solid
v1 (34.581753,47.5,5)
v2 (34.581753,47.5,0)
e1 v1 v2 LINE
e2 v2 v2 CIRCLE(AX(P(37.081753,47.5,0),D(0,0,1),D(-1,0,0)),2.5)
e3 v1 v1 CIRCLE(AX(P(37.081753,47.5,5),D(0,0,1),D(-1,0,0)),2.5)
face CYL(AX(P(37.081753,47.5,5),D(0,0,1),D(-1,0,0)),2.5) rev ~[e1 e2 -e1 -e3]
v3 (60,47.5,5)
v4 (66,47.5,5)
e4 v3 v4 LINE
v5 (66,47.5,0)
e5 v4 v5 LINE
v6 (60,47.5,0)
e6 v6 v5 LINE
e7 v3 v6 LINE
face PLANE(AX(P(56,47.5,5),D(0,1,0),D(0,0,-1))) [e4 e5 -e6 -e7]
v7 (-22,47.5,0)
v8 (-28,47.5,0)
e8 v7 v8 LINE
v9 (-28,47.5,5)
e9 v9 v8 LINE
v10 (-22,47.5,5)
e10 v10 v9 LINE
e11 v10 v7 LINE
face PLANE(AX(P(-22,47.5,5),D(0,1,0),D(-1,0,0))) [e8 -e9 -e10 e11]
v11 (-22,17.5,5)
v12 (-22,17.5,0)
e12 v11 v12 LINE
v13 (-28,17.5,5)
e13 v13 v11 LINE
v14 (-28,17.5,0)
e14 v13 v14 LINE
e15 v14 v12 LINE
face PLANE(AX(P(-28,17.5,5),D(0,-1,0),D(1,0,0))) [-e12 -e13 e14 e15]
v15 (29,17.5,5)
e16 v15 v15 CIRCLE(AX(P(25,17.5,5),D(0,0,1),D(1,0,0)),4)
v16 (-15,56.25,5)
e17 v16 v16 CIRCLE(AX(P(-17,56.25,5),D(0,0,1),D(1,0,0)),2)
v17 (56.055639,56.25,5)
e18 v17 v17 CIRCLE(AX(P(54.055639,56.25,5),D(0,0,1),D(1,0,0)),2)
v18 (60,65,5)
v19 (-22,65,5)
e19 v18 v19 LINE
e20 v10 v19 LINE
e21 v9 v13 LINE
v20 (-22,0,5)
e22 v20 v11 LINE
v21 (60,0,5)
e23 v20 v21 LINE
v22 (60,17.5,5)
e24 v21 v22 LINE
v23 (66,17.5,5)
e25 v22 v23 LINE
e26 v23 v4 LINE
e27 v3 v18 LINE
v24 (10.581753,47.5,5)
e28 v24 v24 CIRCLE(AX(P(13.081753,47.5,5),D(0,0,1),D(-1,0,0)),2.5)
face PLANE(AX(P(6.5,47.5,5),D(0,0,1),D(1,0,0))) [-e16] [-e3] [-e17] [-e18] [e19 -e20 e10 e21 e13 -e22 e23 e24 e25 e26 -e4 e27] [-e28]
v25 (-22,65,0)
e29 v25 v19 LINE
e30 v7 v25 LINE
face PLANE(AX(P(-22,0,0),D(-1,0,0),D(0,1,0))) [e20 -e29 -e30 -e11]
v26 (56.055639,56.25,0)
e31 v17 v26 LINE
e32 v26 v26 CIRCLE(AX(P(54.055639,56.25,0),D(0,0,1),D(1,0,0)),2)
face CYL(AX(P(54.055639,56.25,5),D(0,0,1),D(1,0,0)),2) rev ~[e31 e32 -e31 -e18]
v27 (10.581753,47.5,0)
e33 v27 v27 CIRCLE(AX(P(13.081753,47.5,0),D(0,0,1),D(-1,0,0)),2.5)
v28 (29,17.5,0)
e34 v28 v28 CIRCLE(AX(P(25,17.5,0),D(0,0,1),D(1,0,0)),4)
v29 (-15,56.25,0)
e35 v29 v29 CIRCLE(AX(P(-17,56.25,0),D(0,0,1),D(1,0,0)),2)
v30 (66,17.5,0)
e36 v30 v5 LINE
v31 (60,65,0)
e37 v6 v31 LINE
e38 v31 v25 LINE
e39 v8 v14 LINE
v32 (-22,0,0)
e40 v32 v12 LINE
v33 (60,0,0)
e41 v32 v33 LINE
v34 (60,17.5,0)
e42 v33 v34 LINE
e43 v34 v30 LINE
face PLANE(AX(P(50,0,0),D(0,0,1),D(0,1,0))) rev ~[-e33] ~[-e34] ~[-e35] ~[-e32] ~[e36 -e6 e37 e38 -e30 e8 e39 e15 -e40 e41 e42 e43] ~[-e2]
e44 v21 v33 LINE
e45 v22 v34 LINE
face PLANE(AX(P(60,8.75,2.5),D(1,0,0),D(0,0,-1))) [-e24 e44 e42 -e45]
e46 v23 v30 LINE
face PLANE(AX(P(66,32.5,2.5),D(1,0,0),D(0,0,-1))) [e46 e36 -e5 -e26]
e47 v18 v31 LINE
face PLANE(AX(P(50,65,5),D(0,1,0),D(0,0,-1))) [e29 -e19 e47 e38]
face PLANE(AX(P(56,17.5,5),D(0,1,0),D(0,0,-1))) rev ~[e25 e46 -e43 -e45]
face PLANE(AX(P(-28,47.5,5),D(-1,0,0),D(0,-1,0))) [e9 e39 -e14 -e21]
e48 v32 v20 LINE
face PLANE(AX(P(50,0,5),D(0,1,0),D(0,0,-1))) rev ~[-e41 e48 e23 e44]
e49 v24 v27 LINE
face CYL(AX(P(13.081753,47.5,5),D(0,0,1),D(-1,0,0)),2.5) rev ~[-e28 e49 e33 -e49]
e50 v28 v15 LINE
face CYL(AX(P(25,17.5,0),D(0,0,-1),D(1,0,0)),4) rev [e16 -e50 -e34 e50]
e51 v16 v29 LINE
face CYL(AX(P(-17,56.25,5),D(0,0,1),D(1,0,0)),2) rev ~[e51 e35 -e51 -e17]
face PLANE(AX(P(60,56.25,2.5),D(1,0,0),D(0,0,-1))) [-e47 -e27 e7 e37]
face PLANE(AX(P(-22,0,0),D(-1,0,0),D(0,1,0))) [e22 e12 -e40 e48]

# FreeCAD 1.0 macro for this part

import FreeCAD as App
import Part
import Sketcher

V = App.Vector
Q = App.Units.Quantity


def add_polygon(sketch, points):
    """Adds a closed chain of lines whose ends are joined by coincident constraints."""
    first, n = sketch.GeometryCount, len(points)
    for a, b in zip(points, points[1:] + points[:1]):
        sketch.addGeometry(Part.LineSegment(App.Vector(*a, 0), App.Vector(*b, 0)), False)
    for i in range(n):
        sketch.addConstraint(Sketcher.Constraint("Coincident", first + i, 2, first + (i + 1) % n, 1))

doc = App.newDocument("Part")
body = doc.addObject("PartDesign::Body", "Body")

# Sketch on XY plane
sketch1 = body.newObject("Sketcher::SketchObject", "Sketch")
sketch1.AttachmentSupport = (doc.getObject("XY_Plane"), [""])
sketch1.MapMode = "FlatFace"
add_polygon(sketch1, [(0, 65), (0, 0), (50, 0), (50, 65)])  # lines 0-3
sketch1.addGeometry(Part.Circle(V(25, 17.5, 0), V(0, 0, 1), 4), False)  # 4
sketch1.addGeometry(Part.Circle(V(13, 47.5, 0), V(0, 0, 1), 2), False)  # 5
sketch1.addGeometry(Part.Circle(V(37, 47.5, 0), V(0, 0, 1), 2), False)  # 6
sketch1.addGeometry(Part.Circle(V(25, 59.5, 0), V(0, 0, 1), 2), False)  # 7
sketch1.addConstraint([
    Sketcher.Constraint("Vertical", 0),
    Sketcher.Constraint("Horizontal", 1),
    Sketcher.Constraint("Vertical", 2),
    Sketcher.Constraint("Horizontal", 3),
    Sketcher.Constraint("Coincident", 0, 2, -1, 1),
    Sketcher.Constraint("Equal", 5, 6),
    Sketcher.Constraint("Equal", 6, 7),
    Sketcher.Constraint("Horizontal", 5, 3, 6, 3),
    Sketcher.Constraint("Vertical", 4, 3, 7, 3),
    Sketcher.Constraint("Diameter", 4, Q("8 mm")),
    Sketcher.Constraint("Diameter", 5, Q("4 mm")),
    Sketcher.Constraint("DistanceX", 1, 1, 1, 2, Q("50 mm")),
    Sketcher.Constraint("DistanceY", 0, 2, 0, 1, Q("65 mm")),
    Sketcher.Constraint("DistanceX", -1, 1, 4, 3, Q("25 mm")),
    Sketcher.Constraint("DistanceX", -1, 1, 5, 3, Q("13 mm")),
    Sketcher.Constraint("DistanceX", -1, 1, 6, 3, Q("37 mm")),
    Sketcher.Constraint("DistanceY", 4, 3, 5, 3, Q("30 mm")),
    Sketcher.Constraint("DistanceY", 5, 3, 7, 3, Q("12 mm")),
    Sketcher.Constraint("DistanceY", -1, 1, 4, 3, Q("17.5 mm")),
])
pad1 = body.newObject("PartDesign::Pad", "Pad")
pad1.Profile = sketch1
pad1.Length = 5

# Sketch on XY plane
sketch2 = body.newObject("Sketcher::SketchObject", "Sketch001")
sketch2.AttachmentSupport = (doc.getObject("XY_Plane"), [""])
sketch2.MapMode = "FlatFace"
sketch2.AttachmentOffset = App.Placement(V(0, 0, 5), App.Rotation())
add_polygon(sketch2, [(-21, 65), (-21, 0), (0, 0), (0, 65)])  # lines 0-3
sketch2.addConstraint([
    Sketcher.Constraint("Vertical", 0),
    Sketcher.Constraint("Horizontal", 1),
    Sketcher.Constraint("Vertical", 2),
    Sketcher.Constraint("Horizontal", 3),
    Sketcher.Constraint("Coincident", 1, 2, -1, 1),
    Sketcher.Constraint("DistanceX", 1, 1, 1, 2, Q("21 mm")),
    Sketcher.Constraint("DistanceY", 0, 2, 0, 1, Q("65 mm")),
])
pad2 = body.newObject("PartDesign::Pad", "Pad001")
pad2.Profile = sketch2
pad2.Length = 5
pad2.Reversed = True

# Sketch on XY plane
sketch3 = body.newObject("Sketcher::SketchObject", "Sketch002")
sketch3.AttachmentSupport = (doc.getObject("XY_Plane"), [""])
sketch3.MapMode = "FlatFace"
add_polygon(sketch3, [(-21, 65), (-21, 0), (-22, 0), (-22, 65)])  # lines 0-3
sketch3.addConstraint([
    Sketcher.Constraint("Vertical", 0),
    Sketcher.Constraint("Horizontal", 1),
    Sketcher.Constraint("Vertical", 2),
    Sketcher.Constraint("Horizontal", 3),
    Sketcher.Constraint("PointOnObject", 0, 2, -1),
    Sketcher.Constraint("DistanceX", 1, 2, 1, 1, Q("1 mm")),
    Sketcher.Constraint("DistanceY", 0, 2, 0, 1, Q("65 mm")),
    Sketcher.Constraint("DistanceX", 0, 2, -1, 1, Q("21 mm")),
])
pad3 = body.newObject("PartDesign::Pad", "Pad002")
pad3.Profile = sketch3
pad3.Length = 5

# Sketch on XY plane
sketch4 = body.newObject("Sketcher::SketchObject", "Sketch003")
sketch4.AttachmentSupport = (doc.getObject("XY_Plane"), [""])
sketch4.MapMode = "FlatFace"
sketch4.AttachmentOffset = App.Placement(V(0, 0, 5), App.Rotation())
add_polygon(sketch4, [(-22, 18), (-22, 48), (-28, 48), (-28, 18)])  # lines 0-3
add_polygon(sketch4, [(56, 18), (56, 48), (50, 48), (50, 18)])  # lines 4-7
sketch4.addConstraint([
    Sketcher.Constraint("Vertical", 0),
    Sketcher.Constraint("Horizontal", 1),
    Sketcher.Constraint("Vertical", 2),
    Sketcher.Constraint("Horizontal", 3),
    Sketcher.Constraint("Vertical", 4),
    Sketcher.Constraint("Horizontal", 5),
    Sketcher.Constraint("Vertical", 6),
    Sketcher.Constraint("Horizontal", 7),
    Sketcher.Constraint("Horizontal", 1, 2, 4, 2),
    Sketcher.Constraint("Horizontal", 3, 2, 6, 2),
    Sketcher.Constraint("Equal", 3, 5),
    Sketcher.Constraint("DistanceX", 1, 2, 1, 1, Q("6 mm")),
    Sketcher.Constraint("DistanceY", 0, 1, 0, 2, Q("30 mm")),
    Sketcher.Constraint("DistanceX", 0, 2, -1, 1, Q("22 mm")),
    Sketcher.Constraint("DistanceX", -1, 1, 4, 2, Q("56 mm")),
    Sketcher.Constraint("DistanceY", -1, 1, 0, 2, Q("47.5 mm")),
])
pad4 = body.newObject("PartDesign::Pad", "Pad003")
pad4.Profile = sketch4
pad4.Length = 5
pad4.Reversed = True

# Sketch on XY plane
sketch5 = body.newObject("Sketcher::SketchObject", "Sketch004")
sketch5.AttachmentSupport = (doc.getObject("XY_Plane"), [""])
sketch5.MapMode = "FlatFace"
sketch5.AttachmentOffset = App.Placement(V(0, 0, 5), App.Rotation())
sketch5.addGeometry(Part.Circle(V(25, 35.5, 0), V(0, 0, 1), 2), False)
sketch5.addConstraint([
    Sketcher.Constraint("Diameter", 0, Q("4 mm")),
    Sketcher.Constraint("DistanceX", -1, 1, 0, 3, Q("25 mm")),
    Sketcher.Constraint("DistanceY", -1, 1, 0, 3, Q("35.5 mm")),
])
pocket1 = body.newObject("PartDesign::Pocket", "Pocket")
pocket1.Profile = sketch5
pocket1.Length = 59

# Sketch on XY plane
sketch6 = body.newObject("Sketcher::SketchObject", "Sketch005")
sketch6.AttachmentSupport = (doc.getObject("XY_Plane"), [""])
sketch6.MapMode = "FlatFace"
sketch6.AttachmentOffset = App.Placement(V(0, 0, 5), App.Rotation())
sketch6.addGeometry([
    Part.Circle(V(-17, 56.2, 0), V(0, 0, 1), 1.5),
    Part.Circle(V(44.1, 56.2, 0), V(0, 0, 1), 1.5),
], False)
sketch6.addConstraint([
    Sketcher.Constraint("Equal", 0, 1),
    Sketcher.Constraint("Horizontal", 0, 3, 1, 3),
    Sketcher.Constraint("Diameter", 0, Q("3 mm")),
    Sketcher.Constraint("DistanceX", 0, 3, -1, 1, Q("17 mm")),
    Sketcher.Constraint("DistanceY", -1, 1, 0, 3, Q("56.25 mm")),
    Sketcher.Constraint("DistanceX", -1, 1, 1, 3, Q("44.055639 mm")),
])
pocket2 = body.newObject("PartDesign::Pocket", "Pocket001")
pocket2.Profile = sketch6
pocket2.Length = 10

# Sketch on XY plane
sketch7 = body.newObject("Sketcher::SketchObject", "Sketch006")
sketch7.AttachmentSupport = (doc.getObject("XY_Plane"), [""])
sketch7.MapMode = "FlatFace"
sketch7.AttachmentOffset = App.Placement(V(0, 0, 5), App.Rotation())
sketch7.addGeometry([
    Part.Circle(V(-17, 56.2, 0), V(0, 0, 1), 2),
    Part.Circle(V(44.1, 56.2, 0), V(0, 0, 1), 2),
], False)
sketch7.addConstraint([
    Sketcher.Constraint("Equal", 0, 1),
    Sketcher.Constraint("Horizontal", 0, 3, 1, 3),
    Sketcher.Constraint("Diameter", 0, Q("4 mm")),
    Sketcher.Constraint("DistanceX", 0, 3, -1, 1, Q("17 mm")),
    Sketcher.Constraint("DistanceY", -1, 1, 0, 3, Q("56.25 mm")),
    Sketcher.Constraint("DistanceX", -1, 1, 1, 3, Q("44.055639 mm")),
])
pocket3 = body.newObject("PartDesign::Pocket", "Pocket002")
pocket3.Profile = sketch7
pocket3.Length = 10

# Sketch on XY plane
sketch8 = body.newObject("Sketcher::SketchObject", "Sketch007")
sketch8.AttachmentSupport = (doc.getObject("XY_Plane"), [""])
sketch8.MapMode = "FlatFace"
sketch8.AttachmentOffset = App.Placement(V(0, 0, 5), App.Rotation())
sketch8.addGeometry([
    Part.Circle(V(25, 59.5, 0), V(0, 0, 1), 2.5),
    Part.Circle(V(25, 35.5, 0), V(0, 0, 1), 2.5),
    Part.Circle(V(13, 47.5, 0), V(0, 0, 1), 2.5),
    Part.Circle(V(37, 47.5, 0), V(0, 0, 1), 2.5),
], False)
sketch8.addConstraint([
    Sketcher.Constraint("Equal", 0, 1),
    Sketcher.Constraint("Equal", 1, 2),
    Sketcher.Constraint("Equal", 2, 3),
    Sketcher.Constraint("Horizontal", 2, 3, 3, 3),
    Sketcher.Constraint("Vertical", 0, 3, 1, 3),
    Sketcher.Constraint("Diameter", 0, Q("5 mm")),
    Sketcher.Constraint("DistanceX", -1, 1, 0, 3, Q("25 mm")),
    Sketcher.Constraint("DistanceX", -1, 1, 2, 3, Q("13 mm")),
    Sketcher.Constraint("DistanceX", -1, 1, 3, 3, Q("37 mm")),
    Sketcher.Constraint("DistanceY", 1, 3, 0, 3, Q("24 mm")),
    Sketcher.Constraint("DistanceY", 2, 3, 0, 3, Q("12 mm")),
    Sketcher.Constraint("DistanceY", -1, 1, 0, 3, Q("59.5 mm")),
])
pocket4 = body.newObject("PartDesign::Pocket", "Pocket003")
pocket4.Profile = sketch8
pocket4.Length = 10

# Sketch on XY plane
sketch9 = body.newObject("Sketcher::SketchObject", "Sketch008")
sketch9.AttachmentSupport = (doc.getObject("XY_Plane"), [""])
sketch9.MapMode = "FlatFace"
sketch9.AttachmentOffset = App.Placement(V(0, 0, 5), App.Rotation())
sketch9.addGeometry([
    Part.Circle(V(6.5, 47.5, 0), V(0, 0, 1), 2.5),
    Part.Circle(V(43.7, 47.5, 0), V(0, 0, 1), 2.5),
], False)
sketch9.addConstraint([
    Sketcher.Constraint("Equal", 0, 1),
    Sketcher.Constraint("Horizontal", 0, 3, 1, 3),
    Sketcher.Constraint("Diameter", 0, Q("5 mm")),
    Sketcher.Constraint("DistanceX", -1, 1, 0, 3, Q("6.5 mm")),
    Sketcher.Constraint("DistanceY", -1, 1, 0, 3, Q("47.5 mm")),
    Sketcher.Constraint("DistanceX", -1, 1, 1, 3, Q("43.663505 mm")),
])
pocket5 = body.newObject("PartDesign::Pocket", "Pocket004")
pocket5.Profile = sketch9
pocket5.Length = 10

# Sketch on XY plane
sketch10 = body.newObject("Sketcher::SketchObject", "Sketch009")
sketch10.AttachmentSupport = (doc.getObject("XY_Plane"), [""])
sketch10.MapMode = "FlatFace"
sketch10.AttachmentOffset = App.Placement(V(0, 0, 5), App.Rotation())
sketch10.addGeometry([
    Part.Circle(V(25, 59.5, 0), V(0, 0, 1), 2.5),
    Part.Circle(V(13, 47.5, 0), V(0, 0, 1), 2.5),
    Part.Circle(V(37, 47.5, 0), V(0, 0, 1), 2.5),
    Part.Circle(V(25, 35.5, 0), V(0, 0, 1), 2.5),
], False)
sketch10.addConstraint([
    Sketcher.Constraint("Equal", 0, 1),
    Sketcher.Constraint("Equal", 1, 2),
    Sketcher.Constraint("Equal", 2, 3),
    Sketcher.Constraint("Horizontal", 1, 3, 2, 3),
    Sketcher.Constraint("Vertical", 0, 3, 3, 3),
    Sketcher.Constraint("Diameter", 0, Q("5 mm")),
    Sketcher.Constraint("DistanceX", -1, 1, 0, 3, Q("25 mm")),
    Sketcher.Constraint("DistanceX", -1, 1, 1, 3, Q("13 mm")),
    Sketcher.Constraint("DistanceX", -1, 1, 2, 3, Q("37 mm")),
    Sketcher.Constraint("DistanceY", 1, 3, 0, 3, Q("12 mm")),
    Sketcher.Constraint("DistanceY", 3, 3, 1, 3, Q("12 mm")),
    Sketcher.Constraint("DistanceY", -1, 1, 0, 3, Q("59.5 mm")),
])
pad5 = body.newObject("PartDesign::Pad", "Pad004")
pad5.Profile = sketch10
pad5.Length = 5
pad5.Reversed = True

# Sketch on YZ plane
sketch11 = body.newObject("Sketcher::SketchObject", "Sketch010")
sketch11.AttachmentSupport = (doc.getObject("YZ_Plane"), [""])
sketch11.MapMode = "FlatFace"
sketch11.AttachmentOffset = App.Placement(V(0, 0, 50), App.Rotation())
add_polygon(sketch11, [(65, 5), (48, 5), (48, 0), (65, 0)])  # lines 0-3
sketch11.addConstraint([
    Sketcher.Constraint("Horizontal", 0),
    Sketcher.Constraint("Vertical", 1),
    Sketcher.Constraint("Horizontal", 2),
    Sketcher.Constraint("Vertical", 3),
    Sketcher.Constraint("PointOnObject", 1, 2, -1),
    Sketcher.Constraint("DistanceY", 1, 2, 1, 1, Q("5 mm")),
    Sketcher.Constraint("DistanceX", 0, 2, 0, 1, Q("17.5 mm")),
    Sketcher.Constraint("DistanceX", -1, 1, 2, 2, Q("65 mm")),
])
pad6 = body.newObject("PartDesign::Pad", "Pad005")
pad6.Profile = sketch11
pad6.Length = 10

# Sketch on YZ plane
sketch12 = body.newObject("Sketcher::SketchObject", "Sketch011")
sketch12.AttachmentSupport = (doc.getObject("YZ_Plane"), [""])
sketch12.MapMode = "FlatFace"
sketch12.AttachmentOffset = App.Placement(V(0, 0, 56), App.Rotation())
add_polygon(sketch12, [(48, 5), (18, 5), (18, 0), (48, 0)])  # lines 0-3
sketch12.addConstraint([
    Sketcher.Constraint("Horizontal", 0),
    Sketcher.Constraint("Vertical", 1),
    Sketcher.Constraint("Horizontal", 2),
    Sketcher.Constraint("Vertical", 3),
    Sketcher.Constraint("PointOnObject", 1, 2, -1),
    Sketcher.Constraint("DistanceX", 0, 2, 0, 1, Q("30 mm")),
    Sketcher.Constraint("DistanceY", 1, 2, 1, 1, Q("5 mm")),
    Sketcher.Constraint("DistanceX", -1, 1, 0, 2, Q("17.5 mm")),
])
pad7 = body.newObject("PartDesign::Pad", "Pad006")
pad7.Profile = sketch12
pad7.Length = 10

# Sketch on YZ plane
sketch13 = body.newObject("Sketcher::SketchObject", "Sketch012")
sketch13.AttachmentSupport = (doc.getObject("YZ_Plane"), [""])
sketch13.MapMode = "FlatFace"
sketch13.AttachmentOffset = App.Placement(V(0, 0, 50), App.Rotation())
add_polygon(sketch13, [(18, 5), (0, 5), (0, 0), (18, 0)])  # lines 0-3
sketch13.addConstraint([
    Sketcher.Constraint("Horizontal", 0),
    Sketcher.Constraint("Vertical", 1),
    Sketcher.Constraint("Horizontal", 2),
    Sketcher.Constraint("Vertical", 3),
    Sketcher.Constraint("Coincident", 1, 2, -1, 1),
    Sketcher.Constraint("DistanceY", 1, 2, 1, 1, Q("5 mm")),
    Sketcher.Constraint("DistanceX", 0, 2, 0, 1, Q("17.5 mm")),
])
pad8 = body.newObject("PartDesign::Pad", "Pad007")
pad8.Profile = sketch13
pad8.Length = 10

# Sketch on XY plane
sketch14 = body.newObject("Sketcher::SketchObject", "Sketch013")
sketch14.AttachmentSupport = (doc.getObject("XY_Plane"), [""])
sketch14.MapMode = "FlatFace"
sketch14.AttachmentOffset = App.Placement(V(0, 0, 5), App.Rotation())
sketch14.addGeometry([
    Part.Circle(V(54.1, 56.2, 0), V(0, 0, 1), 2),
    Part.Circle(V(44.1, 56.2, 0), V(0, 0, 1), 2),
], False)
sketch14.addConstraint([
    Sketcher.Constraint("Equal", 0, 1),
    Sketcher.Constraint("Horizontal", 0, 3, 1, 3),
    Sketcher.Constraint("Diameter", 0, Q("4 mm")),
    Sketcher.Constraint("DistanceX", 1, 3, 0, 3, Q("10 mm")),
    Sketcher.Constraint("DistanceY", -1, 1, 0, 3, Q("56.25 mm")),
    Sketcher.Constraint("DistanceX", -1, 1, 0, 3, Q("54.055639 mm")),
])
pad9 = body.newObject("PartDesign::Pad", "Pad008")
pad9.Profile = sketch14
pad9.Length = 5
pad9.Reversed = True

# Sketch on XY plane
sketch15 = body.newObject("Sketcher::SketchObject", "Sketch014")
sketch15.AttachmentSupport = (doc.getObject("XY_Plane"), [""])
sketch15.MapMode = "FlatFace"
sketch15.AttachmentOffset = App.Placement(V(0, 0, 5), App.Rotation())
sketch15.addGeometry(Part.Circle(V(54.1, 56.2, 0), V(0, 0, 1), 2), False)
sketch15.addConstraint([
    Sketcher.Constraint("Diameter", 0, Q("4 mm")),
    Sketcher.Constraint("DistanceY", -1, 1, 0, 3, Q("56.25 mm")),
    Sketcher.Constraint("DistanceX", -1, 1, 0, 3, Q("54.055639 mm")),
])
pocket6 = body.newObject("PartDesign::Pocket", "Pocket005")
pocket6.Profile = sketch15
pocket6.Length = 10

# Sketch on XY plane
sketch16 = body.newObject("Sketcher::SketchObject", "Sketch015")
sketch16.AttachmentSupport = (doc.getObject("XY_Plane"), [""])
sketch16.MapMode = "FlatFace"
sketch16.AttachmentOffset = App.Placement(V(0, 0, 5), App.Rotation())
sketch16.addGeometry([
    Part.Circle(V(6.5, 47.5, 0), V(0, 0, 1), 2.5),
    Part.Circle(V(13.1, 47.5, 0), V(0, 0, 1), 2.5),
    Part.Circle(V(37.1, 47.5, 0), V(0, 0, 1), 2.5),
    Part.Circle(V(43.7, 47.5, 0), V(0, 0, 1), 2.5),
], False)
sketch16.addConstraint([
    Sketcher.Constraint("Equal", 0, 1),
    Sketcher.Constraint("Equal", 1, 2),
    Sketcher.Constraint("Equal", 2, 3),
    Sketcher.Constraint("Horizontal", 0, 3, 1, 3),
    Sketcher.Constraint("Horizontal", 1, 3, 2, 3),
    Sketcher.Constraint("Horizontal", 2, 3, 3, 3),
    Sketcher.Constraint("Diameter", 0, Q("5 mm")),
    Sketcher.Constraint("DistanceX", 1, 3, 2, 3, Q("24 mm")),
    Sketcher.Constraint("DistanceX", -1, 1, 0, 3, Q("6.5 mm")),
    Sketcher.Constraint("DistanceY", -1, 1, 0, 3, Q("47.5 mm")),
    Sketcher.Constraint("DistanceX", -1, 1, 1, 3, Q("13.081753 mm")),
    Sketcher.Constraint("DistanceX", -1, 1, 3, 3, Q("43.663505 mm")),
])
pad10 = body.newObject("PartDesign::Pad", "Pad009")
pad10.Profile = sketch16
pad10.Length = 5
pad10.Reversed = True

# Sketch on XY plane
sketch17 = body.newObject("Sketcher::SketchObject", "Sketch016")
sketch17.AttachmentSupport = (doc.getObject("XY_Plane"), [""])
sketch17.MapMode = "FlatFace"
sketch17.AttachmentOffset = App.Placement(V(0, 0, 5), App.Rotation())
sketch17.addGeometry([
    Part.Circle(V(13.1, 47.5, 0), V(0, 0, 1), 2.5),
    Part.Circle(V(37.1, 47.5, 0), V(0, 0, 1), 2.5),
], False)
sketch17.addConstraint([
    Sketcher.Constraint("Equal", 0, 1),
    Sketcher.Constraint("Horizontal", 0, 3, 1, 3),
    Sketcher.Constraint("Diameter", 0, Q("5 mm")),
    Sketcher.Constraint("DistanceX", 0, 3, 1, 3, Q("24 mm")),
    Sketcher.Constraint("DistanceY", -1, 1, 0, 3, Q("47.5 mm")),
    Sketcher.Constraint("DistanceX", -1, 1, 0, 3, Q("13.081753 mm")),
])
pocket7 = body.newObject("PartDesign::Pocket", "Pocket006")
pocket7.Profile = sketch17
pocket7.Length = 10

doc.recompute()
